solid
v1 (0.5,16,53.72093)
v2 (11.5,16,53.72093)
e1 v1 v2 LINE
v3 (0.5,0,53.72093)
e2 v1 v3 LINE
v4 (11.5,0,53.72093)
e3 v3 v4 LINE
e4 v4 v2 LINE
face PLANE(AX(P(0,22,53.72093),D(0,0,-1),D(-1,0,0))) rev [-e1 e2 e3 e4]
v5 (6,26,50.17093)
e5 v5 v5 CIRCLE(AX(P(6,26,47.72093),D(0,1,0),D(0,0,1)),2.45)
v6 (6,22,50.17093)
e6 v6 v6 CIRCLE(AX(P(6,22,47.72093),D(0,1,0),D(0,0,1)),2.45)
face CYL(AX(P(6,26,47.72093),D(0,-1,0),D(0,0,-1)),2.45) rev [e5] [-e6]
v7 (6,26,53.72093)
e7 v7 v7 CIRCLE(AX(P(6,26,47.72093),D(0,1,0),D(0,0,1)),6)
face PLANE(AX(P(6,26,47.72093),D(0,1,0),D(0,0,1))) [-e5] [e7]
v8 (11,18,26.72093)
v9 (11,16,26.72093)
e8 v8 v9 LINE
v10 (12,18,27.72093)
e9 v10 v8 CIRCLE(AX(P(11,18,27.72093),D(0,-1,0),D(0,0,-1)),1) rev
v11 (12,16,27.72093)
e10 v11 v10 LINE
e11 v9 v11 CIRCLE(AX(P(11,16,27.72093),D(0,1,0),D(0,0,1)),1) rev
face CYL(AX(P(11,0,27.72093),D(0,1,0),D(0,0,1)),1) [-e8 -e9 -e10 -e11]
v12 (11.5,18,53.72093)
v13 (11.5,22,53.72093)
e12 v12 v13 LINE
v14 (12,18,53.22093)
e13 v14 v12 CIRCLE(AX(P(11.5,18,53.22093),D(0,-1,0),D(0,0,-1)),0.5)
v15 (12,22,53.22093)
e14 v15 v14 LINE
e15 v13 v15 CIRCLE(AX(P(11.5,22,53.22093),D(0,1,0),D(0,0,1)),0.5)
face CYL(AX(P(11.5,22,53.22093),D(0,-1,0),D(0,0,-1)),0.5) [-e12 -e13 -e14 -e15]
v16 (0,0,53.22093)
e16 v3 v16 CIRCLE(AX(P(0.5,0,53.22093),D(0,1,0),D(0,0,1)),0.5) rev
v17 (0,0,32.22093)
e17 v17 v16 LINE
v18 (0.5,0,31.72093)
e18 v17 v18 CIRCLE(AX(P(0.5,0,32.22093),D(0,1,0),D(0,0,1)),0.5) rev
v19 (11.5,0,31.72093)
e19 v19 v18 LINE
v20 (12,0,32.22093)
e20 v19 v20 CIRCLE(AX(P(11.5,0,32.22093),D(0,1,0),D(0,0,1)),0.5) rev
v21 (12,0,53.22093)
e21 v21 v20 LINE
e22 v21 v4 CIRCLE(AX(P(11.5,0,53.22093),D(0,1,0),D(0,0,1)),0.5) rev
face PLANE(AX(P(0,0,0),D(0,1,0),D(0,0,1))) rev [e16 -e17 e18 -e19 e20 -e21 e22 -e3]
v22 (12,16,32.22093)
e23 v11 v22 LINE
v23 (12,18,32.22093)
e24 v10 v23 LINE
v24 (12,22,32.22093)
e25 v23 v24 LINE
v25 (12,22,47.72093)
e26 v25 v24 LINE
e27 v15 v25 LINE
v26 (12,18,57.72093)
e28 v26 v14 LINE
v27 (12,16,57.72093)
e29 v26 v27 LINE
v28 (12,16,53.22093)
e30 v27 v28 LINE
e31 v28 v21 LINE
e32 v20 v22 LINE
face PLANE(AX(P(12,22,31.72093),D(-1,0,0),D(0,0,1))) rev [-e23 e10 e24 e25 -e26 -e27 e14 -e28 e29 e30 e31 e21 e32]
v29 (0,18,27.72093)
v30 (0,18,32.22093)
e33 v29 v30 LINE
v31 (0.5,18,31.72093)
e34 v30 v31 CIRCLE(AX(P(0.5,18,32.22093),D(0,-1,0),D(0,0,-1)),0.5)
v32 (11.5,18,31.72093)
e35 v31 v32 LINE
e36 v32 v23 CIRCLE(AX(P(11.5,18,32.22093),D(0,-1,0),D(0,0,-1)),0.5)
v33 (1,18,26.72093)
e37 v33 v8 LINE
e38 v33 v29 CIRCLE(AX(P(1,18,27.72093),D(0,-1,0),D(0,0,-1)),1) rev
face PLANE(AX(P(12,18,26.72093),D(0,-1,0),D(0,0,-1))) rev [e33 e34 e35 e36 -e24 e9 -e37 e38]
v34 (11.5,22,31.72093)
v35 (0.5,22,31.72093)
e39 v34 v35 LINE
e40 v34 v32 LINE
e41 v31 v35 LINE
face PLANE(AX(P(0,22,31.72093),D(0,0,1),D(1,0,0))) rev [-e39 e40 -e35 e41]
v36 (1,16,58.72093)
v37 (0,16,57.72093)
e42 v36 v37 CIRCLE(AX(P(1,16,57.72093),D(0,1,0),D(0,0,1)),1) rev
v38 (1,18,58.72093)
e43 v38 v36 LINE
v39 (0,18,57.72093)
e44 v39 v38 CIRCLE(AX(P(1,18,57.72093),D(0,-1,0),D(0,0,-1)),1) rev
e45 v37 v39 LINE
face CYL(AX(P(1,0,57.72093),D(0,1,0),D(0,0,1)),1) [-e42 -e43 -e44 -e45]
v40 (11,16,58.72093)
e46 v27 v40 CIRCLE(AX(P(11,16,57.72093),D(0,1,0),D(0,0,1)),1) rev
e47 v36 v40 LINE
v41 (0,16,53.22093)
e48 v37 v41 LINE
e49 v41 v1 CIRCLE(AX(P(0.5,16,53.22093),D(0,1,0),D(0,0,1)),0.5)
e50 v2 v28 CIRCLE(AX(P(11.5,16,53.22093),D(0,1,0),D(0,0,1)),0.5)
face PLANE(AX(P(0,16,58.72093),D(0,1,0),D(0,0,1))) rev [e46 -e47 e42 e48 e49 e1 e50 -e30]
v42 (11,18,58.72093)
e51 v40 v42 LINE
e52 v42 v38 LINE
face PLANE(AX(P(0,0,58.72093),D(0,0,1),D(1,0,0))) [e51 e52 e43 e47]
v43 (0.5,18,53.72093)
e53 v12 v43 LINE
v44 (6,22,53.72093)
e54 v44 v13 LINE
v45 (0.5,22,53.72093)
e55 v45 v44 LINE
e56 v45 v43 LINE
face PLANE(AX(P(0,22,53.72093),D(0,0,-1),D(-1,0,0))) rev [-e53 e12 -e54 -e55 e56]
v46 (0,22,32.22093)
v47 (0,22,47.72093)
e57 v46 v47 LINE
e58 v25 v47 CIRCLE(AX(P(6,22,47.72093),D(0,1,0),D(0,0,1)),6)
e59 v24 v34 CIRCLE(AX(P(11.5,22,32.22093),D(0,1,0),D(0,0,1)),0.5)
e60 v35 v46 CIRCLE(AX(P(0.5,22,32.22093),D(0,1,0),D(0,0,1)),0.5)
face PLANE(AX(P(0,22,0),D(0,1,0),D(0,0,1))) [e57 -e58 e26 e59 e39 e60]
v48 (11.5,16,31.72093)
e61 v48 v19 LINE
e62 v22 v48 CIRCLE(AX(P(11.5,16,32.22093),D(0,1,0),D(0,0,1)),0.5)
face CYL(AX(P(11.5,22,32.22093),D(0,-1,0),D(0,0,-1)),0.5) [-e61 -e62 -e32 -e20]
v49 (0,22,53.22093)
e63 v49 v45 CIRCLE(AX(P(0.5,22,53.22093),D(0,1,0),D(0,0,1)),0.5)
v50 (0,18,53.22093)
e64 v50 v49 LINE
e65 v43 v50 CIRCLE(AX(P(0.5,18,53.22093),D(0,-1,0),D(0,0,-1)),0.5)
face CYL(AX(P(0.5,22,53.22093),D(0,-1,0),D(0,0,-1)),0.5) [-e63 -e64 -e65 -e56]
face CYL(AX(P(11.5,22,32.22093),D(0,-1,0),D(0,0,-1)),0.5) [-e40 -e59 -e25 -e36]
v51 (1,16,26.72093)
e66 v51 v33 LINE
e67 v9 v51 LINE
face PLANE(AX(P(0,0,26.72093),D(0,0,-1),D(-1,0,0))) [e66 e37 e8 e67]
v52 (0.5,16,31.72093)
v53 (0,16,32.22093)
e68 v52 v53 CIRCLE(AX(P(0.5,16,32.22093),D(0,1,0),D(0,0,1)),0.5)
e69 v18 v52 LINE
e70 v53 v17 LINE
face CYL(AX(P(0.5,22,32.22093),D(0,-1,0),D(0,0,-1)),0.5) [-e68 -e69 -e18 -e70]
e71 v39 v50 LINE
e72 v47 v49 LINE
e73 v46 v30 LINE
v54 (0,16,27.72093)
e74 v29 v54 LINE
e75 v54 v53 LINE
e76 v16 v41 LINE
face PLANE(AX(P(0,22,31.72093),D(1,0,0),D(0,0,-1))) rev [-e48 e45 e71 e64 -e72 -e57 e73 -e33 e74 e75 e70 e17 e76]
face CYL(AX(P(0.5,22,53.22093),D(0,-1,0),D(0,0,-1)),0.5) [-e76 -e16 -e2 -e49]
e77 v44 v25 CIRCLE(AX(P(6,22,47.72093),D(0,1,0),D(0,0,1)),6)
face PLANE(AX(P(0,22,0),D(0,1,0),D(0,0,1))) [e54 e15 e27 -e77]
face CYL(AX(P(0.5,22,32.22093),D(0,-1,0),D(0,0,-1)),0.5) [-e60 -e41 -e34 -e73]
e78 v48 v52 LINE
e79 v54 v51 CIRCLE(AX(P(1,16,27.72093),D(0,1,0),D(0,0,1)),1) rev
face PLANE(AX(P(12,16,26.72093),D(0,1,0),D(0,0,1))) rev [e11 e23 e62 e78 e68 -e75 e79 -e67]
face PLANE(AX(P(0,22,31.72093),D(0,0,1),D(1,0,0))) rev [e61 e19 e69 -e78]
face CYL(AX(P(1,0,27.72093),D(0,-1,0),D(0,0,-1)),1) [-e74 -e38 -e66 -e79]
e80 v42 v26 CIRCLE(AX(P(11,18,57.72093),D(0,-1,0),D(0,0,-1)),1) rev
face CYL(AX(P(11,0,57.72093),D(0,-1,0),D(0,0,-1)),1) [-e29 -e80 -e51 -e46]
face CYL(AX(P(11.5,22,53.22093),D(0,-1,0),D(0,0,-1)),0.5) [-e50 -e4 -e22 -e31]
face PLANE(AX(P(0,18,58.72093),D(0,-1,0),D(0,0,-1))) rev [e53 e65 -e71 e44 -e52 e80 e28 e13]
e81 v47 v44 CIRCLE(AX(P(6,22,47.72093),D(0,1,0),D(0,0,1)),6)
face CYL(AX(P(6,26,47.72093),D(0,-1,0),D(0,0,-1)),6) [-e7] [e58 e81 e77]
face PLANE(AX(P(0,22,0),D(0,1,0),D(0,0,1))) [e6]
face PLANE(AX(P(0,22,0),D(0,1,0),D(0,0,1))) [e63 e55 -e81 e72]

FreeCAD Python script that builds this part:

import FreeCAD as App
import Part
import Sketcher
Q = App.Units.Quantity


def edges_at(feature, points):
    """Names of the edges that pass closest to the given points."""
    edges = feature.Shape.Edges
    near = lambda p: min(range(len(edges)), key=lambda i: edges[i].distToShape(Part.Vertex(*p))[0])
    return sorted({f"Edge{near(p) + 1}" for p in points})

doc = App.newDocument("Part")
params = doc.addObject("Spreadsheet::Sheet", "Params")
for row, (alias, value) in enumerate([
    ("sketch1_width", "12 mm"),
    ("sketch1_height", "22 mm"),
    ("pad1_length", "22 mm"),
    ("sketch2_diameter", "12 mm"),
    ("sketch2_diameter2", "4.9 mm"),
    ("pad2_length", "4 mm"),
    ("sketch3_width", "12 mm"),
    ("sketch3_height", "2 mm"),
    ("pad3_length", "5 mm"),
    ("sketch4_width", "12 mm"),
    ("sketch4_height", "2 mm"),
    ("pad4_length", "5 mm"),
    ("fillet_radius", "1 mm"),
    ("fillet2_radius", "0.5 mm"),
], start=1):
    params.set(f"A{row}", alias)
    params.set(f"B{row}", "=" + value)
    params.setAlias(f"B{row}", alias)

body = doc.addObject("PartDesign::Body", "Body")

# Sketch on XZ plane
sketch1 = doc.addObject("Sketcher::SketchObject", "Sketch")
body.addObject(sketch1)
sketch1.AttachmentSupport = (doc.XZ_Plane, [""])
sketch1.MapMode = "FlatFace"
sketch1.addGeometry([
    Part.LineSegment(App.Vector(0, 32, 0), App.Vector(0, 54, 0)),
    Part.LineSegment(App.Vector(0, 54, 0), App.Vector(12, 54, 0)),
    Part.LineSegment(App.Vector(12, 54, 0), App.Vector(12, 32, 0)),
    Part.LineSegment(App.Vector(12, 32, 0), App.Vector(0, 32, 0)),
], False)
sketch1.addConstraint([
    Sketcher.Constraint("Coincident", 0, 2, 1, 1),
    Sketcher.Constraint("Coincident", 1, 2, 2, 1),
    Sketcher.Constraint("Coincident", 2, 2, 3, 1),
    Sketcher.Constraint("Coincident", 3, 2, 0, 1),
    Sketcher.Constraint("Vertical", 0),
    Sketcher.Constraint("Horizontal", 1),
    Sketcher.Constraint("Vertical", 2),
    Sketcher.Constraint("Horizontal", 3),
    Sketcher.Constraint("PointOnObject", 0, 2, -2),
    Sketcher.Constraint("DistanceX", 1, 1, 1, 2, Q("12 mm")),
    Sketcher.Constraint("DistanceY", 0, 1, 0, 2, Q("22 mm")),
    Sketcher.Constraint("DistanceY", -1, 1, 0, 2, Q("53.72093 mm")),
])
sketch1.setExpression("Constraints[9]", "Params.sketch1_width")
sketch1.setExpression("Constraints[10]", "Params.sketch1_height")
pad1 = doc.addObject("PartDesign::Pad", "Pad")
body.addObject(pad1)
pad1.Profile = sketch1
pad1.setExpression("Length", "Params.pad1_length")
pad1.Reversed = True

# Sketch on XZ plane
sketch2 = doc.addObject("Sketcher::SketchObject", "Sketch001")
body.addObject(sketch2)
sketch2.AttachmentSupport = (doc.XZ_Plane, [""])
sketch2.MapMode = "FlatFace"
sketch2.AttachmentOffset = App.Placement(App.Vector(0, 0, -22), App.Rotation())
sketch2.addGeometry([
    Part.Circle(App.Vector(6, 47.7, 0), App.Vector(0, 0, 1), 6),
    Part.Circle(App.Vector(6, 47.7, 0), App.Vector(0, 0, 1), 2.5),
], False)
sketch2.addConstraint([
    Sketcher.Constraint("Coincident", 1, 3, 0, 3),
    Sketcher.Constraint("Diameter", 0, Q("12 mm")),
    Sketcher.Constraint("Diameter", 1, Q("4.9 mm")),
    Sketcher.Constraint("DistanceX", -1, 1, 0, 3, Q("6 mm")),
    Sketcher.Constraint("DistanceY", -1, 1, 0, 3, Q("47.72093 mm")),
])
sketch2.setExpression("Constraints[1]", "Params.sketch2_diameter")
sketch2.setExpression("Constraints[2]", "Params.sketch2_diameter2")
pad2 = doc.addObject("PartDesign::Pad", "Pad001")
body.addObject(pad2)
pad2.Profile = sketch2
pad2.setExpression("Length", "Params.pad2_length")
pad2.Reversed = True

# Sketch on XY plane
sketch3 = doc.addObject("Sketcher::SketchObject", "Sketch002")
body.addObject(sketch3)
sketch3.AttachmentSupport = (doc.XY_Plane, [""])
sketch3.MapMode = "FlatFace"
sketch3.AttachmentOffset = App.Placement(App.Vector(0, 0, 53.72093), App.Rotation())
sketch3.addGeometry([
    Part.LineSegment(App.Vector(0, 18, 0), App.Vector(0, 16, 0)),
    Part.LineSegment(App.Vector(0, 16, 0), App.Vector(12, 16, 0)),
    Part.LineSegment(App.Vector(12, 16, 0), App.Vector(12, 18, 0)),
    Part.LineSegment(App.Vector(12, 18, 0), App.Vector(0, 18, 0)),
], False)
sketch3.addConstraint([
    Sketcher.Constraint("Coincident", 0, 2, 1, 1),
    Sketcher.Constraint("Coincident", 1, 2, 2, 1),
    Sketcher.Constraint("Coincident", 2, 2, 3, 1),
    Sketcher.Constraint("Coincident", 3, 2, 0, 1),
    Sketcher.Constraint("Vertical", 0),
    Sketcher.Constraint("Horizontal", 1),
    Sketcher.Constraint("Vertical", 2),
    Sketcher.Constraint("Horizontal", 3),
    Sketcher.Constraint("PointOnObject", 0, 2, -2),
    Sketcher.Constraint("DistanceX", 1, 1, 1, 2, Q("12 mm")),
    Sketcher.Constraint("DistanceY", 0, 2, 0, 1, Q("2 mm")),
    Sketcher.Constraint("DistanceY", -1, 1, 0, 2, Q("16 mm")),
])
sketch3.setExpression("Constraints[9]", "Params.sketch3_width")
sketch3.setExpression("Constraints[10]", "Params.sketch3_height")
pad3 = doc.addObject("PartDesign::Pad", "Pad002")
body.addObject(pad3)
pad3.Profile = sketch3
pad3.setExpression("Length", "Params.pad3_length")

# Sketch on XY plane
sketch4 = doc.addObject("Sketcher::SketchObject", "Sketch003")
body.addObject(sketch4)
sketch4.AttachmentSupport = (doc.XY_Plane, [""])
sketch4.MapMode = "FlatFace"
sketch4.AttachmentOffset = App.Placement(App.Vector(0, 0, 31.72093), App.Rotation())
sketch4.addGeometry([
    Part.LineSegment(App.Vector(12, 18, 0), App.Vector(12, 16, 0)),
    Part.LineSegment(App.Vector(12, 16, 0), App.Vector(0, 16, 0)),
    Part.LineSegment(App.Vector(0, 16, 0), App.Vector(0, 18, 0)),
    Part.LineSegment(App.Vector(0, 18, 0), App.Vector(12, 18, 0)),
], False)
sketch4.addConstraint([
    Sketcher.Constraint("Coincident", 0, 2, 1, 1),
    Sketcher.Constraint("Coincident", 1, 2, 2, 1),
    Sketcher.Constraint("Coincident", 2, 2, 3, 1),
    Sketcher.Constraint("Coincident", 3, 2, 0, 1),
    Sketcher.Constraint("Vertical", 0),
    Sketcher.Constraint("Horizontal", 1),
    Sketcher.Constraint("Vertical", 2),
    Sketcher.Constraint("Horizontal", 3),
    Sketcher.Constraint("PointOnObject", 1, 2, -2),
    Sketcher.Constraint("DistanceX", 1, 2, 1, 1, Q("12 mm")),
    Sketcher.Constraint("DistanceY", 0, 2, 0, 1, Q("2 mm")),
    Sketcher.Constraint("DistanceY", -1, 1, 0, 2, Q("16 mm")),
])
sketch4.setExpression("Constraints[9]", "Params.sketch4_width")
sketch4.setExpression("Constraints[10]", "Params.sketch4_height")
pad4 = doc.addObject("PartDesign::Pad", "Pad003")
body.addObject(pad4)
pad4.Profile = sketch4
pad4.setExpression("Length", "Params.pad4_length")
pad4.Reversed = True
doc.recompute()

fillet = doc.addObject("PartDesign::Fillet", "Fillet")
body.addObject(fillet)
fillet.Base = (pad4, edges_at(pad4, [
    (0, 17, 58.721),
    (12, 17, 58.721),
    (12, 17, 26.721),
    (0, 17, 26.721),
]))
fillet.setExpression("Radius", "Params.fillet_radius")
doc.recompute()

fillet2 = doc.addObject("PartDesign::Fillet", "Fillet001")
body.addObject(fillet2)
fillet2.Base = (fillet, edges_at(fillet, [
    (12, 8, 53.721),
    (0, 8, 53.721),
    (0, 8, 31.721),
    (12, 8, 31.721),
    (0, 20, 31.721),
    (12, 20, 31.721),
    (12, 20, 53.721),
    (0, 20, 53.721),
]))
fillet2.setExpression("Radius", "Params.fillet2_radius")

doc.recompute()
